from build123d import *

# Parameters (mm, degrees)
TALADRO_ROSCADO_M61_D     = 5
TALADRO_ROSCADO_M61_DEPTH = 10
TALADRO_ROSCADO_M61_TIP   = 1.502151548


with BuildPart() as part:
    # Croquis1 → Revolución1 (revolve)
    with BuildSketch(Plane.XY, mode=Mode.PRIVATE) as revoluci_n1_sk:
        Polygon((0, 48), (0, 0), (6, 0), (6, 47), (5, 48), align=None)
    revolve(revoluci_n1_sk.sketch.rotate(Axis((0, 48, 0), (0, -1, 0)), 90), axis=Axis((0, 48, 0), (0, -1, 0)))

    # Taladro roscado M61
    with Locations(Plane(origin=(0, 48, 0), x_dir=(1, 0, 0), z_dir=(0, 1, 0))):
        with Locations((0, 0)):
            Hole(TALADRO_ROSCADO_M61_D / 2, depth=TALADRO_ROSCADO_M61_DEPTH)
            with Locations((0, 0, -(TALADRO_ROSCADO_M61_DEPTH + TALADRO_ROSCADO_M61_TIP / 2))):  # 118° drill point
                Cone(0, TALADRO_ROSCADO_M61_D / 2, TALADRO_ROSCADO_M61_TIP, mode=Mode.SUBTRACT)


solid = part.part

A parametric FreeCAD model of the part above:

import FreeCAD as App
import Part
import Sketcher
from FreeCAD import Vector
Q = App.Units.Quantity

doc = App.newDocument("Part")
body = doc.addObject("PartDesign::Body", "Body")

# Sketch on XY plane
sketch1 = body.newObject("Sketcher::SketchObject", "Sketch")
sketch1.AttachmentSupport = (doc.getObject("XY_Plane"), [""])
sketch1.MapMode = "FlatFace"
sketch1.addGeometry([
    Part.LineSegment(Vector(0, 48, 0), Vector(0, 0, 0)),  # 0
    Part.LineSegment(Vector(0, 0, 0), Vector(6, 0, 0)),  # 1
    Part.LineSegment(Vector(6, 0, 0), Vector(6, 47, 0)),  # 2
    Part.LineSegment(Vector(6, 47, 0), Vector(5, 48, 0)),  # 3
    Part.LineSegment(Vector(5, 48, 0), Vector(0, 48, 0)),  # 4
], False)
sketch1.addConstraint([
    Sketcher.Constraint("Coincident", 0, 2, 1, 1),
    Sketcher.Constraint("Coincident", 1, 2, 2, 1),
    Sketcher.Constraint("Coincident", 2, 2, 3, 1),
    Sketcher.Constraint("Coincident", 3, 2, 4, 1),
    Sketcher.Constraint("Coincident", 4, 2, 0, 1),
    Sketcher.Constraint("Vertical", 0),
    Sketcher.Constraint("Horizontal", 1),
    Sketcher.Constraint("Vertical", 2),
    Sketcher.Constraint("Horizontal", 4),
    Sketcher.Constraint("Coincident", 0, 2, -1, 1),
    Sketcher.Constraint("DistanceX", 1, 1, 1, 2, Q("6 mm")),
    Sketcher.Constraint("DistanceX", 4, 2, 4, 1, Q("5 mm")),
    Sketcher.Constraint("DistanceY", 0, 2, 0, 1, Q("48 mm")),
    Sketcher.Constraint("DistanceY", 2, 1, 2, 2, Q("47 mm")),
])
revolution = body.newObject("PartDesign::Revolution", "Revolution")
revolution.Profile = sketch1
revolution.ReferenceAxis = (sketch1, ["V_Axis"])
revolution.Angle = 360

# Sketch on XZ plane
sketch2 = body.newObject("Sketcher::SketchObject", "Sketch001")
sketch2.AttachmentSupport = (doc.getObject("XZ_Plane"), [""])
sketch2.MapMode = "FlatFace"
sketch2.AttachmentOffset = App.Placement(Vector(0, 0, -48), App.Rotation())
sketch2.addGeometry(Part.Circle(Vector(0, 0, 0), Vector(0, 0, 1), 2.5), False)
sketch2.addConstraint([
    Sketcher.Constraint("Coincident", 0, 3, -1, 1),
    Sketcher.Constraint("Diameter", 0, Q("5 mm")),
])
doc.recompute()
hole = body.newObject("PartDesign::Hole", "Hole")
hole.Profile = sketch2
hole.ThreadType = "None"
hole.Diameter = 5
hole.DepthType = "Dimension"
hole.Depth = 10
hole.DrillPoint = "Angled"
hole.DrillPointAngle = 118
hole.Reversed = True

doc.recompute()
